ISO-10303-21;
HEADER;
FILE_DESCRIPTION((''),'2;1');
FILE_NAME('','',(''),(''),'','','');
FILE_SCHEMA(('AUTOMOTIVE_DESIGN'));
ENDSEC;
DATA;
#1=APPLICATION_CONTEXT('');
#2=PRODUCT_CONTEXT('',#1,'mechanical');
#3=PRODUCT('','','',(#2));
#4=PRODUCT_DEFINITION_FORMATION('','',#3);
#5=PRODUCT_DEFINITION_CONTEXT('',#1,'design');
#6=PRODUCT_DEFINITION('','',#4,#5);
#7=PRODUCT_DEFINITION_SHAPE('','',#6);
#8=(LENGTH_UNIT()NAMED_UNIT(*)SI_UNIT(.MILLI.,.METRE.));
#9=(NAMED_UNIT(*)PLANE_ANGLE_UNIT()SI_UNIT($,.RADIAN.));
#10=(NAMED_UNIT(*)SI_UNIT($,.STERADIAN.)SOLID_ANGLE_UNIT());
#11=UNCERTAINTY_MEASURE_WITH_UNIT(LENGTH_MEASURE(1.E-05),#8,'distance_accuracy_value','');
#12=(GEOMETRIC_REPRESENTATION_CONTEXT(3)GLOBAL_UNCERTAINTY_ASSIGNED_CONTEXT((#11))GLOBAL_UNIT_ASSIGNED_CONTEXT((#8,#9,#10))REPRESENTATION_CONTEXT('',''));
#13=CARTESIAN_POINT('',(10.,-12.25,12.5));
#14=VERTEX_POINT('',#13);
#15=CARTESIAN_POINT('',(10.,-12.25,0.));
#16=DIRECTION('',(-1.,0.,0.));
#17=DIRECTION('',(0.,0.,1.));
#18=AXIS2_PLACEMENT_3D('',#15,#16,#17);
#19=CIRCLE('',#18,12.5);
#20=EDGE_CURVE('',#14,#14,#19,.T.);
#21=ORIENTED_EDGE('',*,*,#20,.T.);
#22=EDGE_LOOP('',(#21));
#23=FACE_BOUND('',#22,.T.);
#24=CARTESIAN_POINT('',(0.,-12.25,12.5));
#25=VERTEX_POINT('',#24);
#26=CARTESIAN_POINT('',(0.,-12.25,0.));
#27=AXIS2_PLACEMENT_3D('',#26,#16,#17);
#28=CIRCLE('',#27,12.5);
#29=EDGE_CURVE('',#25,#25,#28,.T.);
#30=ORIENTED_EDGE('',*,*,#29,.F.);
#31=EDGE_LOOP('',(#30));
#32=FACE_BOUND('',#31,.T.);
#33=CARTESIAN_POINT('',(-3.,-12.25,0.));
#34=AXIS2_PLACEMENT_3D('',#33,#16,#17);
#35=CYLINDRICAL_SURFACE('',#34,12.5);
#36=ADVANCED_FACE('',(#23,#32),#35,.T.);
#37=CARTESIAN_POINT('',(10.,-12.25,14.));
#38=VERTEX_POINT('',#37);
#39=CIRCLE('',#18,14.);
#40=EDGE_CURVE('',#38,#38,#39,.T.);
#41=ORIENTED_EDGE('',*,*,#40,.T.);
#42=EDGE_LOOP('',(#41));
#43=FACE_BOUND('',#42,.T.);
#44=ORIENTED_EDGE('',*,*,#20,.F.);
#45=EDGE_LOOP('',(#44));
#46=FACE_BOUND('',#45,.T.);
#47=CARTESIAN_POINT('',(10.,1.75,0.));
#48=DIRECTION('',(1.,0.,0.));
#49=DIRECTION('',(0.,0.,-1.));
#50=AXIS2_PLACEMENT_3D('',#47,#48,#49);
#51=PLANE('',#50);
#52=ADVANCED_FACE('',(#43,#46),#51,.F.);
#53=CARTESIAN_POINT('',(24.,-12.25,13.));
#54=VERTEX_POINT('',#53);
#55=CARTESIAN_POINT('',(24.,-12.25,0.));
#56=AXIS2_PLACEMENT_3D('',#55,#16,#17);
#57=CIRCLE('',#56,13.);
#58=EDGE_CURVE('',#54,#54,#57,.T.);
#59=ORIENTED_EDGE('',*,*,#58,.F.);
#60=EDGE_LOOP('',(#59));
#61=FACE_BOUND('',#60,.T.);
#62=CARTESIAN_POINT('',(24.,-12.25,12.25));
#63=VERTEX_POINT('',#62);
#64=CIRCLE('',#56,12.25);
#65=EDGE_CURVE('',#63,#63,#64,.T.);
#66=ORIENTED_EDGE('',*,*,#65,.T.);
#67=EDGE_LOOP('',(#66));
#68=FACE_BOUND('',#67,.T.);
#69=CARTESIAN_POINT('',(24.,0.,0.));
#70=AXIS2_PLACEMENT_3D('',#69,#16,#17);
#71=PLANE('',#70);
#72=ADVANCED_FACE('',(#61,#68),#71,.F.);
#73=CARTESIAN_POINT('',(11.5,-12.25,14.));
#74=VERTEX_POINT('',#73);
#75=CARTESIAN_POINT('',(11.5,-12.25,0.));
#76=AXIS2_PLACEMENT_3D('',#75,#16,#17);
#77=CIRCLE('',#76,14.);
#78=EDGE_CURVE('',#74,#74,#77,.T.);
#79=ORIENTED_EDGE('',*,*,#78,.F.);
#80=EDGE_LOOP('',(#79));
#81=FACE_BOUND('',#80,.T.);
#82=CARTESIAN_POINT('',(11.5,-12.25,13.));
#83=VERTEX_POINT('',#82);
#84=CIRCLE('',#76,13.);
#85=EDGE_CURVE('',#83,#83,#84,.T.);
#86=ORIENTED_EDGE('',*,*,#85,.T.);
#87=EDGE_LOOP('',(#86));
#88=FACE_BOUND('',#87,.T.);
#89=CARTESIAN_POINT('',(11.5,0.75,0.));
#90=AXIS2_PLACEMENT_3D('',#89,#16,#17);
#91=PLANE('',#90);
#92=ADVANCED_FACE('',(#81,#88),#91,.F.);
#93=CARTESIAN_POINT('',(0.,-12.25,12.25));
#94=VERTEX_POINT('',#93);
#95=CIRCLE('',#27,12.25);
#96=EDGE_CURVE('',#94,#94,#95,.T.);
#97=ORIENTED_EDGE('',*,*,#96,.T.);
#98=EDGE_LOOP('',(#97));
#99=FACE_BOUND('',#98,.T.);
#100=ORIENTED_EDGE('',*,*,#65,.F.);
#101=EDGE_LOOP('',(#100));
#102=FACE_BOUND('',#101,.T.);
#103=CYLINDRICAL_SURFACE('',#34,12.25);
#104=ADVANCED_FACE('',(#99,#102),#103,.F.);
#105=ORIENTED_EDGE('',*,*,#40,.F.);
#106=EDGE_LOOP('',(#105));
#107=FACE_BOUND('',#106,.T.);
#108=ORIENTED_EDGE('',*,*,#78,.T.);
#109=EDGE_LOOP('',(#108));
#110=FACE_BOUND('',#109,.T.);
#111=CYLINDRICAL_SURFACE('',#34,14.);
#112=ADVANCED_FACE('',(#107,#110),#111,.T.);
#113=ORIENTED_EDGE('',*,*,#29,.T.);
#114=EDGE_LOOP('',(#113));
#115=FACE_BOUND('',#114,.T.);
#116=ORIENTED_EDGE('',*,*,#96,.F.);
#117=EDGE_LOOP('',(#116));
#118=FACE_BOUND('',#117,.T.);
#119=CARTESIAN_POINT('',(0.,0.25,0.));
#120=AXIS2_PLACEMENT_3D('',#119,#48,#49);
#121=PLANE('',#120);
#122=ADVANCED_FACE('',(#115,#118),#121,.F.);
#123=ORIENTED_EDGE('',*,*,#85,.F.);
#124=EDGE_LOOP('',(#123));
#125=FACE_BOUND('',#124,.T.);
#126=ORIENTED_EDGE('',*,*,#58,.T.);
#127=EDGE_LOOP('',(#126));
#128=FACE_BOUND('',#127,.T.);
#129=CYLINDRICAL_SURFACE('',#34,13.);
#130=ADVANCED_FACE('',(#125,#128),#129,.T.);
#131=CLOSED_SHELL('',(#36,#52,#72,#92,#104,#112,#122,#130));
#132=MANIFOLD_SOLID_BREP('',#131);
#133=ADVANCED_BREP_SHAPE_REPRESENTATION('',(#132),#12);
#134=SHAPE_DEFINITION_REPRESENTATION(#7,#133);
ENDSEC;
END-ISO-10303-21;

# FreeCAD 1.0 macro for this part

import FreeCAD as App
import Part
import Sketcher

V = App.Vector


def add_polygon(sketch, points):
    """Adds a closed chain of lines whose ends are joined by coincident constraints."""
    first, n = sketch.GeometryCount, len(points)
    for a, b in zip(points, points[1:] + points[:1]):
        sketch.addGeometry(Part.LineSegment(App.Vector(*a, 0), App.Vector(*b, 0)), False)
    for i in range(n):
        sketch.addConstraint(Sketcher.Constraint("Coincident", first + i, 2, first + (i + 1) % n, 1))

doc = App.newDocument("Part")
body = doc.addObject("PartDesign::Body", "Body")

# Sketch on XY plane
sketch1 = body.newObject("Sketcher::SketchObject", "Sketch")
sketch1.AttachmentSupport = (doc.getObject("XY_Plane"), [""])
sketch1.MapMode = "FlatFace"
add_polygon(sketch1, [(0, 0), (24, 0), (24, 0.75), (11.5, 0.75), (11.5, 1.75), (10, 1.75), (10, 0.25), (0, 0.25)])  # lines 0-7
sketch1.addGeometry(Part.LineSegment(V(0, -12.25, 0), V(24, -12.25, 0)), True)  # axis
sketch1.addConstraint([
    Sketcher.Constraint("Horizontal", 0),
    Sketcher.Constraint("Vertical", 1),
    Sketcher.Constraint("Horizontal", 2),
    Sketcher.Constraint("Vertical", 3),
    Sketcher.Constraint("Horizontal", 4),
    Sketcher.Constraint("Vertical", 5),
    Sketcher.Constraint("Horizontal", 6),
    Sketcher.Constraint("Vertical", 7),
    Sketcher.Constraint("Horizontal", 8),
    Sketcher.Constraint("Coincident", 7, 2, -1, 1),
    Sketcher.Constraint("PointOnObject", 8, 1, -2),
    Sketcher.Constraint("Vertical", 1, 2, 8, 2),
    Sketcher.Constraint("Equal", 4, 5),
    Sketcher.Constraint("DistanceX", 0, 1, 0, 2, 24.0),
    Sketcher.Constraint("DistanceX", 6, 2, 6, 1, 10.0),
    Sketcher.Constraint("DistanceY", 3, 1, 3, 2, 1.0),
    Sketcher.Constraint("DistanceX", 2, 2, 2, 1, 12.5),
    Sketcher.Constraint("DistanceY", 8, 1, 4, 2, 14.0),
    Sketcher.Constraint("DistanceY", 1, 1, 1, 2, 0.75),
])
revolution = body.newObject("PartDesign::Revolution", "Revolution")
revolution.Profile = sketch1
revolution.ReferenceAxis = (sketch1, ["Axis0"])
revolution.Angle = 360

doc.recompute()
